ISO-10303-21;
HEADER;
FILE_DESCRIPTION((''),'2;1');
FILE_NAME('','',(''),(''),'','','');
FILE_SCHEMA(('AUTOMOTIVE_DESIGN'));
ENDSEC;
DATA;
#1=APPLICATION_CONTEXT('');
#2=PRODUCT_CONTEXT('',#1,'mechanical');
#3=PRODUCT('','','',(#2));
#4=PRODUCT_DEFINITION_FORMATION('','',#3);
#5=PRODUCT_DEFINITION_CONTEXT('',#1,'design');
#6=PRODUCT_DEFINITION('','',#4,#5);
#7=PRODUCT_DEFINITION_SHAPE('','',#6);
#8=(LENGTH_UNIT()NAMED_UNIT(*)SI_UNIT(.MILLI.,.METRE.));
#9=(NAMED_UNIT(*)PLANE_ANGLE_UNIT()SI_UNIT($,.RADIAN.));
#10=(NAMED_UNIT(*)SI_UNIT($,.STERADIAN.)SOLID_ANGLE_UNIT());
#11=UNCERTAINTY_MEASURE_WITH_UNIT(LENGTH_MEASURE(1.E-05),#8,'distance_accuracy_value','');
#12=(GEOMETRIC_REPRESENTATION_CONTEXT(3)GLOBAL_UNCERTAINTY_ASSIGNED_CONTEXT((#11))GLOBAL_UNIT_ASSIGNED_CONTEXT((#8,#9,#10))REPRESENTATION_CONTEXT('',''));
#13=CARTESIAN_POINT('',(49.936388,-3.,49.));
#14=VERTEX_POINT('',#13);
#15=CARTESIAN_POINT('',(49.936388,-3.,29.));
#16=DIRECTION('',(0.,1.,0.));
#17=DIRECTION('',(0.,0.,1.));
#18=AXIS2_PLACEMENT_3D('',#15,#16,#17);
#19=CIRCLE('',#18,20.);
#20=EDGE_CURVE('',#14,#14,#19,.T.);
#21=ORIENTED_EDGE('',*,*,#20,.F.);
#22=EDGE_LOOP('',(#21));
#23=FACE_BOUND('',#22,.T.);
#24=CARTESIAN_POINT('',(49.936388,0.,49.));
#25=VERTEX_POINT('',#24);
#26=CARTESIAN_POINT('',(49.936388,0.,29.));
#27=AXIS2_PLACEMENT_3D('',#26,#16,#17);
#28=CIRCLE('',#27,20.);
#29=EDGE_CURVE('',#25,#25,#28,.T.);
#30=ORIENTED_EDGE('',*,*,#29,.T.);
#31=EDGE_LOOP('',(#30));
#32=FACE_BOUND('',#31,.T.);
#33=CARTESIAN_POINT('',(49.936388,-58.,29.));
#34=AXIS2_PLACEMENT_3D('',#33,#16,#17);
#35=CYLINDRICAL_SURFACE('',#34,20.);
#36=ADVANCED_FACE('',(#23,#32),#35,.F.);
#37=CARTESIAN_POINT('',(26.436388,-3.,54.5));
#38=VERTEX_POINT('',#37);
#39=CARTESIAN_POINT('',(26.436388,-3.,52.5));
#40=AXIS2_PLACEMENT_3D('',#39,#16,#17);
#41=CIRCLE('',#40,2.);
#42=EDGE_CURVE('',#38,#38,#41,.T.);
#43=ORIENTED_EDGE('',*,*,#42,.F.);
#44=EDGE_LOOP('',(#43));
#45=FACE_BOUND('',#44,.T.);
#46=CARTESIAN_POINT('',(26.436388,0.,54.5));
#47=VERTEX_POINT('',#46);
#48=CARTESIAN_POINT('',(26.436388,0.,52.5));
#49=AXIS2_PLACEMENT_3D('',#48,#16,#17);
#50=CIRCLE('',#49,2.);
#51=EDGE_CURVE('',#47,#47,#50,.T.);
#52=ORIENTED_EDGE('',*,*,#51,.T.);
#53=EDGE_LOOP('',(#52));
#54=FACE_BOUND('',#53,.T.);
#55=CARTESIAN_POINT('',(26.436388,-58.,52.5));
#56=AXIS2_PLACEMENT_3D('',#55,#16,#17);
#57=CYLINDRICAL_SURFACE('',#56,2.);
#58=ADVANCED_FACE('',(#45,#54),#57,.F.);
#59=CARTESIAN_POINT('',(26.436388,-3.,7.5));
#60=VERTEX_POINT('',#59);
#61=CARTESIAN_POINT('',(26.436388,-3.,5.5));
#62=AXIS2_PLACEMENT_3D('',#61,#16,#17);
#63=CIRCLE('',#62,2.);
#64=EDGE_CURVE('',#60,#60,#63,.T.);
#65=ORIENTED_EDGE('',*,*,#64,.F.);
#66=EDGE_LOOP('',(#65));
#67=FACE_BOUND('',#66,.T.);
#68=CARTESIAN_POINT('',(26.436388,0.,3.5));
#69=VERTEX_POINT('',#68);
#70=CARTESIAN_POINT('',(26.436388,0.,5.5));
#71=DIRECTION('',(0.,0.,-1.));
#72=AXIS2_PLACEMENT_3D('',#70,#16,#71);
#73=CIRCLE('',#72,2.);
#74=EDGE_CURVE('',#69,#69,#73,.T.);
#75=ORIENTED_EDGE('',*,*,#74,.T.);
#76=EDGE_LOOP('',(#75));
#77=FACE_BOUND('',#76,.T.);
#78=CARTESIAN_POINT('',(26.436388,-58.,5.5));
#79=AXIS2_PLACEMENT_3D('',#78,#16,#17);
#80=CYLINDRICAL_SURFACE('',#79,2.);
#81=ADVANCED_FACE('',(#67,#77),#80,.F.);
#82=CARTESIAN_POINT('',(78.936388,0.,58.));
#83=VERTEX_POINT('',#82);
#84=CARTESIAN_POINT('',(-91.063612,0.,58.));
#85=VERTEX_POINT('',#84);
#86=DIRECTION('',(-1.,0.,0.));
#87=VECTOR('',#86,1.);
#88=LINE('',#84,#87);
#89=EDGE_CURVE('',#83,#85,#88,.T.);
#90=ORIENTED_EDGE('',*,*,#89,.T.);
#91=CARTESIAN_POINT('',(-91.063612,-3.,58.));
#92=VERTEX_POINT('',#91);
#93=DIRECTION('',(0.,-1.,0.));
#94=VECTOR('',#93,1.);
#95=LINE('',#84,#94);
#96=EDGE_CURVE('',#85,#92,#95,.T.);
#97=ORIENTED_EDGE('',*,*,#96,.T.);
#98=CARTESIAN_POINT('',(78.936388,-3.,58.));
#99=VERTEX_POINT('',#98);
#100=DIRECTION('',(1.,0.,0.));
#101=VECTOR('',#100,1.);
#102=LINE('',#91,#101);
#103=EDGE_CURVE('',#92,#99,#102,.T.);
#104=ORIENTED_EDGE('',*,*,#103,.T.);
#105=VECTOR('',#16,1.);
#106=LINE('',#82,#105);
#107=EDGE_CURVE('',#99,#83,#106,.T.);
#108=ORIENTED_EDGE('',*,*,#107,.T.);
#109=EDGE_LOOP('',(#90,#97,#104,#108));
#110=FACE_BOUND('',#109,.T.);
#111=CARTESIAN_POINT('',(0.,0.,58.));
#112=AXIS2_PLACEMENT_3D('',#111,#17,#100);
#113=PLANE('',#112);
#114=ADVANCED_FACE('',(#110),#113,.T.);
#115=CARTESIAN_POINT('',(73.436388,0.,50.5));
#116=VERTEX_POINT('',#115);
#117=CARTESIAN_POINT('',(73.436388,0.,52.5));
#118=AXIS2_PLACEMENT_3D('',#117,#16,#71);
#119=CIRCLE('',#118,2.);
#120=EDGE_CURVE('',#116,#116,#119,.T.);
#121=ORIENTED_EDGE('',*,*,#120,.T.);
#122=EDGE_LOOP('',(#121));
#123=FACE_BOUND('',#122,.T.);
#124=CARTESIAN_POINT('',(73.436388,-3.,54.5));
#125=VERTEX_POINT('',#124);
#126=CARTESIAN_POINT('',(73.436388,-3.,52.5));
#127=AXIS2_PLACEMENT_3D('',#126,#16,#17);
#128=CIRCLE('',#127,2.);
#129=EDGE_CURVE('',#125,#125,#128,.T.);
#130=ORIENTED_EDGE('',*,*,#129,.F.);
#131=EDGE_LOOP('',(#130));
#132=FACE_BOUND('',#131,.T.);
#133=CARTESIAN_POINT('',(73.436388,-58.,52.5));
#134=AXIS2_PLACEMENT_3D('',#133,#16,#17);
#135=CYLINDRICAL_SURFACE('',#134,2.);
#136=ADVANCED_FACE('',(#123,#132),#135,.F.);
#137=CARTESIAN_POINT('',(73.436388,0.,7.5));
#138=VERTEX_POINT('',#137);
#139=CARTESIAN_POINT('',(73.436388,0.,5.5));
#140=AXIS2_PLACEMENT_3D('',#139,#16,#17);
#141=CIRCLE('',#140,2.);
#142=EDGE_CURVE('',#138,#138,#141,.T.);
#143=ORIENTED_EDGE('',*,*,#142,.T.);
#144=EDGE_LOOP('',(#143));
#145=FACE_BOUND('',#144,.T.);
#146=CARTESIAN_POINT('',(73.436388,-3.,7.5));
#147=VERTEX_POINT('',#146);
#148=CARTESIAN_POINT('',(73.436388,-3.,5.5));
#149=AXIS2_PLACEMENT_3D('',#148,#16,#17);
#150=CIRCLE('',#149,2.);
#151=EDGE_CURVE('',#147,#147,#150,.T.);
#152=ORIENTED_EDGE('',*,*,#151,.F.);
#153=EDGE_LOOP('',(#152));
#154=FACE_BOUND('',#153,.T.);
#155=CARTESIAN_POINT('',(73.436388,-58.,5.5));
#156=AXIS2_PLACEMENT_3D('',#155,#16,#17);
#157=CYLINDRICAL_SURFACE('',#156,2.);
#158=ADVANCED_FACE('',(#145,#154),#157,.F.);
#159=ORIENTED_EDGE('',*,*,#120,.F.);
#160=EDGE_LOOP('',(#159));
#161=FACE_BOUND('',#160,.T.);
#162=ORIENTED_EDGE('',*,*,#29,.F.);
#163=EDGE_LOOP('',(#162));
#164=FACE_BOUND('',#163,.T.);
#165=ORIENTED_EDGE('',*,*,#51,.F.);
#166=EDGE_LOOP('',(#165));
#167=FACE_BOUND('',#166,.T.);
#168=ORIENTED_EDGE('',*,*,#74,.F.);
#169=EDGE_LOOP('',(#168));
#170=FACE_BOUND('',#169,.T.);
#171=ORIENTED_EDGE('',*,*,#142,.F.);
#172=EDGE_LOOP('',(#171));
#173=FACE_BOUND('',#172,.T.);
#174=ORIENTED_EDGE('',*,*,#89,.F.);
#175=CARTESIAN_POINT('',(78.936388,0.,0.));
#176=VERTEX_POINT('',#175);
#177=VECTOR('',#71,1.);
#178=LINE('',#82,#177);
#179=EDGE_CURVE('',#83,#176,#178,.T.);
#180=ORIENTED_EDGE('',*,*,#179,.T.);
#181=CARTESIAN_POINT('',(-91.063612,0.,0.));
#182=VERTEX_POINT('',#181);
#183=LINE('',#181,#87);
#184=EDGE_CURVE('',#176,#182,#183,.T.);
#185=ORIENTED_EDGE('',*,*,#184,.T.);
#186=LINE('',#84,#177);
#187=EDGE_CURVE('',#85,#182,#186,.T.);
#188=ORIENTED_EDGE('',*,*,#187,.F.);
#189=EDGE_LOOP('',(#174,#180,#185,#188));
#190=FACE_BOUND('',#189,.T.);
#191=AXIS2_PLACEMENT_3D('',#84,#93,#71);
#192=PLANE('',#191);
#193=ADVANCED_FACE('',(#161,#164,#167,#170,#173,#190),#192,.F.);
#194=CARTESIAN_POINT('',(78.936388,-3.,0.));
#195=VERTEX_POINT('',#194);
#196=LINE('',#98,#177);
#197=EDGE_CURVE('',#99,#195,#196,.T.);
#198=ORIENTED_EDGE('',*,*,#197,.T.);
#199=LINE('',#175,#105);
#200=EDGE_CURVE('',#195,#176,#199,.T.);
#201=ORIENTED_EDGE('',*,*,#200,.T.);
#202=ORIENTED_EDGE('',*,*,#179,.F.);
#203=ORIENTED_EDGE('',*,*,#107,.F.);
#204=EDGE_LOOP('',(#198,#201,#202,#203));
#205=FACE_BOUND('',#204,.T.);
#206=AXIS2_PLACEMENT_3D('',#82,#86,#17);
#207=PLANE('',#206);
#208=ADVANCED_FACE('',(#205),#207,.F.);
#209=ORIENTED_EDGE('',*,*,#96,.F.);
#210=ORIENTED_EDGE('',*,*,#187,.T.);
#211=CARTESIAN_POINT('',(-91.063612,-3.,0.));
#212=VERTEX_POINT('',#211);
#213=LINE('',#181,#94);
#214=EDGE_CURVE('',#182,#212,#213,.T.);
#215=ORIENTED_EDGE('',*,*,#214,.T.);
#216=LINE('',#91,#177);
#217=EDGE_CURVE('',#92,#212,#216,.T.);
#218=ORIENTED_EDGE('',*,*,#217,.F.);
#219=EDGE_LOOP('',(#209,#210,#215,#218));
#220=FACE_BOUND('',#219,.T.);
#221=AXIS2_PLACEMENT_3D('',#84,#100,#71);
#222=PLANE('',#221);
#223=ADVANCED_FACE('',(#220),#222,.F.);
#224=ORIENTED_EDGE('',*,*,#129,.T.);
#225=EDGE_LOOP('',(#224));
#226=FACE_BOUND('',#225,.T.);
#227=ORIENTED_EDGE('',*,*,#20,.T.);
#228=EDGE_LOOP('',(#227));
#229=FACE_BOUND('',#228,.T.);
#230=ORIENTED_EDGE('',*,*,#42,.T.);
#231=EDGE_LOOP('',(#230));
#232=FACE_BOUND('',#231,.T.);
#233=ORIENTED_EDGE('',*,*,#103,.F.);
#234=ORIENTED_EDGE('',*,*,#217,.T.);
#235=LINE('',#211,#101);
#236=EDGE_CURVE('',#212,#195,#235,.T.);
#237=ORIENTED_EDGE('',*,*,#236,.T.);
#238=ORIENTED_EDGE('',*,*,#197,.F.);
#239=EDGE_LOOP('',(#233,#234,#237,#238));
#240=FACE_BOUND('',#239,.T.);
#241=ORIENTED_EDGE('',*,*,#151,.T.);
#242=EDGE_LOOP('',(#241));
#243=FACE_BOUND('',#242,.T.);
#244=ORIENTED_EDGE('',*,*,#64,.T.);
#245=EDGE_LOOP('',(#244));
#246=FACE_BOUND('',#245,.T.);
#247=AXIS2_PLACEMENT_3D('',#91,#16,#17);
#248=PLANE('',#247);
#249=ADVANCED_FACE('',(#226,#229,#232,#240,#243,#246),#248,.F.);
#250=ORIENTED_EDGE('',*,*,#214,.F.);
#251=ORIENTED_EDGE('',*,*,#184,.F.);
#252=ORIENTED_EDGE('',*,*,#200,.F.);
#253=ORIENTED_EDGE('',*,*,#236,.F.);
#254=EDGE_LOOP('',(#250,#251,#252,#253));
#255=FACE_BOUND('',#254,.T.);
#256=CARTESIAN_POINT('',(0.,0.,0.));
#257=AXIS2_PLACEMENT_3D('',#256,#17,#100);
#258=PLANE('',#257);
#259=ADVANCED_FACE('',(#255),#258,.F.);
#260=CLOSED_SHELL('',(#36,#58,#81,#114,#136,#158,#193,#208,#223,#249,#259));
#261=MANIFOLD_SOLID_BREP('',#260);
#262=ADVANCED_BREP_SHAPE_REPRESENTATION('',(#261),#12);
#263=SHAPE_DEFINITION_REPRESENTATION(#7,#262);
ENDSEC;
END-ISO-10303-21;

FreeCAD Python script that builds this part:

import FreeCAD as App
import Part
import Sketcher

V = App.Vector


def add_polygon(sketch, points):
    """Adds a closed chain of lines whose ends are joined by coincident constraints."""
    first, n = sketch.GeometryCount, len(points)
    for a, b in zip(points, points[1:] + points[:1]):
        sketch.addGeometry(Part.LineSegment(App.Vector(*a, 0), App.Vector(*b, 0)), False)
    for i in range(n):
        sketch.addConstraint(Sketcher.Constraint("Coincident", first + i, 2, first + (i + 1) % n, 1))

doc = App.newDocument("Part")
params = doc.addObject("Spreadsheet::Sheet", "Params")
for row, (alias, value) in enumerate([
    ("sketch1_width", "170 mm"),
    ("sketch1_height", "3 mm"),
    ("pad1_length", "58 mm"),
    ("sketch2_diameter", "4 mm"),
    ("sketch2_diameter2", "40 mm"),
    ("pocket1_length", "58 mm"),
], start=1):
    params.set(f"A{row}", alias)
    params.set(f"B{row}", "=" + value)
    params.setAlias(f"B{row}", alias)

body = doc.addObject("PartDesign::Body", "Body")

# Sketch on XY plane
sketch1 = body.newObject("Sketcher::SketchObject", "Sketch")
sketch1.AttachmentSupport = (doc.getObject("XY_Plane"), [""])
sketch1.MapMode = "FlatFace"
add_polygon(sketch1, [(-91.1, 0), (-91.1, -3), (78.9, -3), (78.9, 0)])  # lines 0-3
sketch1.addConstraint([
    Sketcher.Constraint("Vertical", 0),
    Sketcher.Constraint("Horizontal", 1),
    Sketcher.Constraint("Vertical", 2),
    Sketcher.Constraint("Horizontal", 3),
    Sketcher.Constraint("PointOnObject", 2, 2, -1),
    Sketcher.Constraint("DistanceX", 1, 1, 1, 2, 170.0),
    Sketcher.Constraint("DistanceY", 0, 2, 0, 1, 3.0),
    Sketcher.Constraint("DistanceX", 0, 2, -1, 1, 91.063612),
])
sketch1.setExpression("Constraints[9]", "Params.sketch1_width")
sketch1.setExpression("Constraints[10]", "Params.sketch1_height")
pad1 = body.newObject("PartDesign::Pad", "Pad")
pad1.Profile = sketch1
pad1.setExpression("Length", "Params.pad1_length")

# Sketch on XZ plane
sketch2 = body.newObject("Sketcher::SketchObject", "Sketch001")
sketch2.AttachmentSupport = (doc.getObject("XZ_Plane"), [""])
sketch2.MapMode = "FlatFace"
sketch2.addGeometry([
    Part.Circle(V(73.4, 5.5, 0), V(0, 0, 1), 2),  # 0
    Part.Circle(V(73.4, 52.5, 0), V(0, 0, 1), 2),  # 1
    Part.Circle(V(26.4, 52.5, 0), V(0, 0, 1), 2),  # 2
    Part.Circle(V(26.4, 5.5, 0), V(0, 0, 1), 2),  # 3
    Part.Circle(V(49.9, 29, 0), V(0, 0, 1), 20),  # 4
], False)
sketch2.addConstraint([
    Sketcher.Constraint("Equal", 0, 1),
    Sketcher.Constraint("Equal", 1, 2),
    Sketcher.Constraint("Equal", 2, 3),
    Sketcher.Constraint("Horizontal", 1, 3, 2, 3),
    Sketcher.Constraint("Horizontal", 0, 3, 3, 3),
    Sketcher.Constraint("Vertical", 0, 3, 1, 3),
    Sketcher.Constraint("Vertical", 2, 3, 3, 3),
    Sketcher.Constraint("Diameter", 0, 4.0),
    Sketcher.Constraint("Diameter", 4, 40.0),
    Sketcher.Constraint("DistanceY", -1, 1, 4, 3, 29.0),
    Sketcher.Constraint("DistanceY", 0, 3, 1, 3, 47.0),
    Sketcher.Constraint("DistanceX", 2, 3, 1, 3, 47.0),
    Sketcher.Constraint("DistanceY", -1, 1, 0, 3, 5.5),
    Sketcher.Constraint("DistanceX", 2, 3, 4, 3, 23.5),
    Sketcher.Constraint("DistanceX", -1, 1, 0, 3, 73.436388),
])
sketch2.setExpression("Constraints[7]", "Params.sketch2_diameter")
sketch2.setExpression("Constraints[8]", "Params.sketch2_diameter2")
pocket1 = body.newObject("PartDesign::Pocket", "Pocket")
pocket1.Profile = sketch2
pocket1.setExpression("Length", "Params.pocket1_length")
pocket1.Reversed = True

doc.recompute()
